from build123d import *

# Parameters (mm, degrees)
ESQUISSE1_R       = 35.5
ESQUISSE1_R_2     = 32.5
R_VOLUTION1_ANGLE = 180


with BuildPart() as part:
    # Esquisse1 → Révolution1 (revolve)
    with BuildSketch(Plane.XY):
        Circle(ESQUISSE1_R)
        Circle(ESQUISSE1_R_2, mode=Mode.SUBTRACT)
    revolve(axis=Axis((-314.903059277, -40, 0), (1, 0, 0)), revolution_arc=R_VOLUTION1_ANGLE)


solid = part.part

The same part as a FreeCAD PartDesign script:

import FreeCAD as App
import Part
import Sketcher
Q = App.Units.Quantity

doc = App.newDocument("Part")
params = doc.addObject("Spreadsheet::Sheet", "Params")
for row, (alias, value) in enumerate([
    ("sketch1_diameter", "71 mm"),
    ("sketch1_diameter2", "65 mm"),
    ("sketch1_width", "10 mm"),
    ("revolution_angle", "180 deg"),
], start=1):
    params.set(f"A{row}", alias)
    params.set(f"B{row}", "=" + value)
    params.setAlias(f"B{row}", alias)

body = doc.addObject("PartDesign::Body", "Body")

sketch1 = body.newObject("Sketcher::SketchObject", "Sketch")
sketch1.AttachmentSupport = (doc.getObject("XY_Plane"), [""])
sketch1.MapMode = "FlatFace"
sketch1.addGeometry([
    Part.Circle(App.Vector(0, 0, 0), App.Vector(0, 0, 1), 35.5),
    Part.Circle(App.Vector(0, 0, 0), App.Vector(0, 0, 1), 32.5),
], False)
sketch1.addGeometry(Part.LineSegment(App.Vector(0, -40, 0), App.Vector(10, -40, 0)), True)
sketch1.addConstraint([
    Sketcher.Constraint("Horizontal", 2),
    Sketcher.Constraint("Coincident", 0, 3, -1, 1),
    Sketcher.Constraint("Coincident", 1, 3, -1, 1),
    Sketcher.Constraint("PointOnObject", 2, 1, -2),
    Sketcher.Constraint("Diameter", 0, Q("71 mm")),
    Sketcher.Constraint("Diameter", 1, Q("65 mm")),
    Sketcher.Constraint("DistanceX", 2, 1, 2, 2, Q("10 mm")),
    Sketcher.Constraint("DistanceY", 2, 1, -1, 1, Q("40 mm")),
])
sketch1.setExpression("Constraints[4]", "Params.sketch1_diameter")
sketch1.setExpression("Constraints[5]", "Params.sketch1_diameter2")
sketch1.setExpression("Constraints[6]", "Params.sketch1_width")
revolution = body.newObject("PartDesign::Revolution", "Revolution")
revolution.Profile = sketch1
revolution.ReferenceAxis = (sketch1, ["Axis0"])
revolution.setExpression("Angle", "Params.revolution_angle")

doc.recompute()
